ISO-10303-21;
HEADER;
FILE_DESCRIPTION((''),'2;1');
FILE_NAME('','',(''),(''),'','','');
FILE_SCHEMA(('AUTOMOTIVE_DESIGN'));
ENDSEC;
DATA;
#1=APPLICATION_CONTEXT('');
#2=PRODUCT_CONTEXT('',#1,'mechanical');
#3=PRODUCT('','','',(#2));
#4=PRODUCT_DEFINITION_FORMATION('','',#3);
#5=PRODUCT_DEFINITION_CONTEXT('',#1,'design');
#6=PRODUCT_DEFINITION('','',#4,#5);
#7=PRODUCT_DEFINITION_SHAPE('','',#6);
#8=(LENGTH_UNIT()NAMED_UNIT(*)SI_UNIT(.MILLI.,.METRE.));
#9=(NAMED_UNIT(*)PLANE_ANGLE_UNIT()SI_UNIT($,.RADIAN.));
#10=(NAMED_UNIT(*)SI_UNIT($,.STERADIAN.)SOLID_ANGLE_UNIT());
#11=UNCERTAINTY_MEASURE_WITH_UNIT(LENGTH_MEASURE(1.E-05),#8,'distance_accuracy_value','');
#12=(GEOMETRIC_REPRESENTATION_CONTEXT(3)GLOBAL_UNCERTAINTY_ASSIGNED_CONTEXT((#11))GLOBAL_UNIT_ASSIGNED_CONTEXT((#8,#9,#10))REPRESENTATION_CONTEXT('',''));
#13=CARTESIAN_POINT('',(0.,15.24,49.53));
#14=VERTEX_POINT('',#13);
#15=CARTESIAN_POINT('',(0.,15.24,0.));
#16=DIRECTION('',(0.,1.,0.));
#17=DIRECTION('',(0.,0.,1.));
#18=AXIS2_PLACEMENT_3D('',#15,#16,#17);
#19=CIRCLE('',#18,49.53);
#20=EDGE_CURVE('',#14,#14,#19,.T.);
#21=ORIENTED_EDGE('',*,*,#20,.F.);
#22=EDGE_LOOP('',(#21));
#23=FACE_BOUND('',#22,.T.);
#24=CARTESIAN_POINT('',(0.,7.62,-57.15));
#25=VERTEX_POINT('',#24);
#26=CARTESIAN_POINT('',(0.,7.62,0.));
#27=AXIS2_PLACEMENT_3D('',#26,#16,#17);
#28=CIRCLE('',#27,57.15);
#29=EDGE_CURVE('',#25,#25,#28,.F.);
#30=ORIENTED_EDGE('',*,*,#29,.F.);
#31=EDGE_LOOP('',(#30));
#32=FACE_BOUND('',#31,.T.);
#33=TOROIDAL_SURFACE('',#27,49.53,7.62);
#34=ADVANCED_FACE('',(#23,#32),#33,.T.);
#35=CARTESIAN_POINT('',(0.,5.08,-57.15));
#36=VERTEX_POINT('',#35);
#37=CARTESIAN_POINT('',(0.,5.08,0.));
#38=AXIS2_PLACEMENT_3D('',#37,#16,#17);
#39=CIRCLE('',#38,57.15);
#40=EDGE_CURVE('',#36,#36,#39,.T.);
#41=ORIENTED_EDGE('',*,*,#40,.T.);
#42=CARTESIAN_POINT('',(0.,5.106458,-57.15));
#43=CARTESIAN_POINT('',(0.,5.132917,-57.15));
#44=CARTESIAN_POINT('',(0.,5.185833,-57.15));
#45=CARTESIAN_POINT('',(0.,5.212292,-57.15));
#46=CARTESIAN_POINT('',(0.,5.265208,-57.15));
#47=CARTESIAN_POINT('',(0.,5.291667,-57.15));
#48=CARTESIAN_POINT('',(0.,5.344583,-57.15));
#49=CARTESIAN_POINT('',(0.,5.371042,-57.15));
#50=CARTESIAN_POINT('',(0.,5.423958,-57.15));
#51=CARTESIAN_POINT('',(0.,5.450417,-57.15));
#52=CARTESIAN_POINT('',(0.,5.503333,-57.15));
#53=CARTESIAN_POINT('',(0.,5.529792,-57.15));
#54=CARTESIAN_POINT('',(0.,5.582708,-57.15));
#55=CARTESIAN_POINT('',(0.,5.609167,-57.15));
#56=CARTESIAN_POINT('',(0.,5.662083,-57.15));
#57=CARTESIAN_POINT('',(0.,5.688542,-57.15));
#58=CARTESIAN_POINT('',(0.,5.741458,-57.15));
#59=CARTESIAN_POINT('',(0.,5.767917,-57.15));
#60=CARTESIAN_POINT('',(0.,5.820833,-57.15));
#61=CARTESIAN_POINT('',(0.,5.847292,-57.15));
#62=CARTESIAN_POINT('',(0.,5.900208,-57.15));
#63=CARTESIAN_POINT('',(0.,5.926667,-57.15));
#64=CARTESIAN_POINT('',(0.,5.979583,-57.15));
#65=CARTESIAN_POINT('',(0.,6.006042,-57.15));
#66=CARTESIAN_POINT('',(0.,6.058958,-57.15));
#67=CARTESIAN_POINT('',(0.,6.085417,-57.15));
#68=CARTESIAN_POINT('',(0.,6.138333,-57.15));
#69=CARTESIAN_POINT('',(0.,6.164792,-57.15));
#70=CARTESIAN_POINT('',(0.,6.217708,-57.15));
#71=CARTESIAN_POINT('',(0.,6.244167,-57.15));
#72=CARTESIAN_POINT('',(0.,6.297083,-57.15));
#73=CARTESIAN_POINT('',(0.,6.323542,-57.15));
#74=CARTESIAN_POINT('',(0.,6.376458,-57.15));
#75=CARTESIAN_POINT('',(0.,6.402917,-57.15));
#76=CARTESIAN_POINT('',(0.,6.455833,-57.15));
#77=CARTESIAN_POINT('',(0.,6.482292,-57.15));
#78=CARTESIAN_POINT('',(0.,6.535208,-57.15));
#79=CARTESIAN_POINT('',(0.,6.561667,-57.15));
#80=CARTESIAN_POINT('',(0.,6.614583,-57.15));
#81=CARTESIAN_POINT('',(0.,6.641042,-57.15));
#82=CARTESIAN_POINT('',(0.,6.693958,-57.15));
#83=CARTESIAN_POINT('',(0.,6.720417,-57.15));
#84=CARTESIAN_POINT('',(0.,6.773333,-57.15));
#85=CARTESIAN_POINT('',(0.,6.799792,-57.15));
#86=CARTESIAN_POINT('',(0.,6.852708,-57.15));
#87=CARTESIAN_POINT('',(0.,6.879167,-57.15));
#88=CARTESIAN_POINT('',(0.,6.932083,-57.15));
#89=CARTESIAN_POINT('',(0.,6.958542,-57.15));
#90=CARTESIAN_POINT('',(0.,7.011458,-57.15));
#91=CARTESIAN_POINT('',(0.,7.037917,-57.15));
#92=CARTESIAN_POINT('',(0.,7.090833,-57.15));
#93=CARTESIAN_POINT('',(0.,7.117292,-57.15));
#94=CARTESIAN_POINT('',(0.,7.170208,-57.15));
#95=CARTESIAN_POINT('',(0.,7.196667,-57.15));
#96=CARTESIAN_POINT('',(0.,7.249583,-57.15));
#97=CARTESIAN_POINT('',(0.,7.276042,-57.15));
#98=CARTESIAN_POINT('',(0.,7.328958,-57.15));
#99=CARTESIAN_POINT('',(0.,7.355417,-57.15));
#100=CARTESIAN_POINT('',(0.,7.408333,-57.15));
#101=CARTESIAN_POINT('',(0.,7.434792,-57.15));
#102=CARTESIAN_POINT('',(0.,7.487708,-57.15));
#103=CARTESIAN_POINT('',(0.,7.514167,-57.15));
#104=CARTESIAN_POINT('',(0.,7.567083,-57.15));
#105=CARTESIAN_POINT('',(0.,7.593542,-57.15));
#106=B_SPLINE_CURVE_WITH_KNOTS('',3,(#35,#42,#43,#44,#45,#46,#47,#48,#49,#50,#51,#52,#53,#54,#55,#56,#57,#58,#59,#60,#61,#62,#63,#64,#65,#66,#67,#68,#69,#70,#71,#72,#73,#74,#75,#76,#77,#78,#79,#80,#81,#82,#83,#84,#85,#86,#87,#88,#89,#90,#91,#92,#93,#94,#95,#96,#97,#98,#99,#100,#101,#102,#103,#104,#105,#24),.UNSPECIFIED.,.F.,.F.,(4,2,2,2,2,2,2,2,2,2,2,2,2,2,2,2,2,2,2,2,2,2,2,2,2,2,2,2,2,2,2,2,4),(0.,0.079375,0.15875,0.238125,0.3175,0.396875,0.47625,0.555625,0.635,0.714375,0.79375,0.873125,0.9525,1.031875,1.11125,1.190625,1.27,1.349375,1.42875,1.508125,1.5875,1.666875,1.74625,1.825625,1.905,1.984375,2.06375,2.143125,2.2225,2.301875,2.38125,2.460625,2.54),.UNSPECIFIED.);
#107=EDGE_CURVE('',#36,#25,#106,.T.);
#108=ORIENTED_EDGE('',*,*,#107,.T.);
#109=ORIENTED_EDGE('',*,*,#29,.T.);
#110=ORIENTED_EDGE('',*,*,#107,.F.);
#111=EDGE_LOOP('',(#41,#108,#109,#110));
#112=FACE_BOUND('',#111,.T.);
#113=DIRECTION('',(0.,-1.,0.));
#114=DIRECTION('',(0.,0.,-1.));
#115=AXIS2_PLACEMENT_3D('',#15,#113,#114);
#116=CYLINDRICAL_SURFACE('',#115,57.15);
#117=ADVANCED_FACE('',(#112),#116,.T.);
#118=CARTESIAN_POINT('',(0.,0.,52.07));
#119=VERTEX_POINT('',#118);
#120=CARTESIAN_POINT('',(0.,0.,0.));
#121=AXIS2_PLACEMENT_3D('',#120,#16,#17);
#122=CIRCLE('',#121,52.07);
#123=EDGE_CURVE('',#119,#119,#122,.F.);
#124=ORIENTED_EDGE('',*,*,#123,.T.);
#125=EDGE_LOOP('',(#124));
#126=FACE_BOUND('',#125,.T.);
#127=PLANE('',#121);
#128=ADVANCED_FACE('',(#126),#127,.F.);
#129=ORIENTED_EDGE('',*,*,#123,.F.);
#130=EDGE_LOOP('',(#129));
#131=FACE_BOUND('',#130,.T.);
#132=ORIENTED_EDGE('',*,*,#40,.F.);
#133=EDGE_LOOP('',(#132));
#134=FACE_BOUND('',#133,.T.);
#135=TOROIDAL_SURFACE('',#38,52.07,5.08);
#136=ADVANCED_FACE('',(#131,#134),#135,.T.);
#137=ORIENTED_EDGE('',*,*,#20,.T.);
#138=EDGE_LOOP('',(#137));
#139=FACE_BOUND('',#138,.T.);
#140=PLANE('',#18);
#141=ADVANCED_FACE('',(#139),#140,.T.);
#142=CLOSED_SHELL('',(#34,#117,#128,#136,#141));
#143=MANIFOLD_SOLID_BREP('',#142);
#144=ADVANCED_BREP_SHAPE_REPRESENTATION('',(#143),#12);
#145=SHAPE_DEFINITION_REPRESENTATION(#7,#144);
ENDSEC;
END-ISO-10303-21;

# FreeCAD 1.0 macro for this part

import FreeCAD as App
import Part
import Sketcher
from FreeCAD import Vector
Q = App.Units.Quantity


def edges_at(feature, points):
    """Names of the edges that pass closest to the given points."""
    edges = feature.Shape.Edges
    near = lambda p: min(range(len(edges)), key=lambda i: edges[i].distToShape(Part.Vertex(*p))[0])
    return sorted({f"Edge{near(p) + 1}" for p in points})

doc = App.newDocument("Part")
body = doc.addObject("PartDesign::Body", "Body")

sketch1 = doc.addObject("Sketcher::SketchObject", "Sketch")
body.addObject(sketch1)
sketch1.AttachmentSupport = (doc.XZ_Plane, [""])
sketch1.MapMode = "FlatFace"
sketch1.addGeometry(Part.Circle(Vector(0, 0, 0), Vector(0, 0, 1), 57), False)
sketch1.addConstraint(Sketcher.Constraint("Coincident", 0, 3, -1, 1))
sketch1.addConstraint(Sketcher.Constraint("Diameter", 0, Q("4.5 in")))
pad1 = doc.addObject("PartDesign::Pad", "Pad")
body.addObject(pad1)
pad1.Profile = sketch1
pad1.Length = Q("0.6 in")
pad1.Reversed = True
doc.recompute()

fillet = doc.addObject("PartDesign::Fillet", "Fillet")
body.addObject(fillet)
fillet.Base = (pad1, edges_at(pad1, [(0, 15.24, 57.15)]))
fillet.Radius = Q("0.3 in")
doc.recompute()

fillet2 = doc.addObject("PartDesign::Fillet", "Fillet001")
body.addObject(fillet2)
fillet2.Base = (fillet, edges_at(fillet, [(0, 0, 57.15)]))
fillet2.Radius = Q("0.2 in")

doc.recompute()
